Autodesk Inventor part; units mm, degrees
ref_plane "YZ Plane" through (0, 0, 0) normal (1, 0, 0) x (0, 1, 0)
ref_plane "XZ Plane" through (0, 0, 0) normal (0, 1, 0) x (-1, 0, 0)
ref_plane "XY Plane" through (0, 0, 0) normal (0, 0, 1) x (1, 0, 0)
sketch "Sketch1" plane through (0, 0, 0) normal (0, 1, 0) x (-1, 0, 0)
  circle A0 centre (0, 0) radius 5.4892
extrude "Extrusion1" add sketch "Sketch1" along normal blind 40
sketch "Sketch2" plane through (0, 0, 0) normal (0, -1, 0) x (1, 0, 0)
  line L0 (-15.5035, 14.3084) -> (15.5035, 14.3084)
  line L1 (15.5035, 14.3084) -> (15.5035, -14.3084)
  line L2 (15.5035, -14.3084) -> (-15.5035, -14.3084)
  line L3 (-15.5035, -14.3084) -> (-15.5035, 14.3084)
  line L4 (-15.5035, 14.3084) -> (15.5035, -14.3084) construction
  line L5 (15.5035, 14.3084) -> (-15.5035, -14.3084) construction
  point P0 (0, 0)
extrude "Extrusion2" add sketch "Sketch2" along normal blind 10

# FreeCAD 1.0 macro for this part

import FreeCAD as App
import Part
import Sketcher


def add_polygon(sketch, points):
    """Adds a closed chain of lines whose ends are joined by coincident constraints."""
    first, n = sketch.GeometryCount, len(points)
    for a, b in zip(points, points[1:] + points[:1]):
        sketch.addGeometry(Part.LineSegment(App.Vector(*a, 0), App.Vector(*b, 0)), False)
    for i in range(n):
        sketch.addConstraint(Sketcher.Constraint("Coincident", first + i, 2, first + (i + 1) % n, 1))

doc = App.newDocument("Part")
body = doc.addObject("PartDesign::Body", "Body")

# Sketch on XZ plane
sketch1 = doc.addObject("Sketcher::SketchObject", "Sketch")
body.addObject(sketch1)
sketch1.AttachmentSupport = (doc.XZ_Plane, [""])
sketch1.MapMode = "FlatFace"
sketch1.addGeometry(Part.Circle(App.Vector(0, 0, 0), App.Vector(0, 0, 1), 5), False)
sketch1.addConstraint([
    Sketcher.Constraint("Coincident", 0, 3, -1, 1),
    Sketcher.Constraint("Diameter", 0, 10.9784),
])
pad1 = doc.addObject("PartDesign::Pad", "Pad")
body.addObject(pad1)
pad1.Profile = sketch1
pad1.Length = 40
pad1.Reversed = True

# Sketch on XZ plane
sketch2 = doc.addObject("Sketcher::SketchObject", "Sketch001")
body.addObject(sketch2)
sketch2.AttachmentSupport = (doc.XZ_Plane, [""])
sketch2.MapMode = "FlatFace"
add_polygon(sketch2, [(16, 14), (-16, 14), (-16, -14), (16, -14)])  # lines 0-3
sketch2.addConstraint([
    Sketcher.Constraint("Horizontal", 0),
    Sketcher.Constraint("Vertical", 1),
    Sketcher.Constraint("Horizontal", 2),
    Sketcher.Constraint("Vertical", 3),
    Sketcher.Constraint("Symmetric", 0, 2, 2, 2, -1, 1),
    Sketcher.Constraint("DistanceX", 0, 2, 0, 1, 31.007),
    Sketcher.Constraint("DistanceY", 1, 2, 1, 1, 28.6168),
])
pad2 = doc.addObject("PartDesign::Pad", "Pad001")
body.addObject(pad2)
pad2.Profile = sketch2
pad2.Length = 10

doc.recompute()
